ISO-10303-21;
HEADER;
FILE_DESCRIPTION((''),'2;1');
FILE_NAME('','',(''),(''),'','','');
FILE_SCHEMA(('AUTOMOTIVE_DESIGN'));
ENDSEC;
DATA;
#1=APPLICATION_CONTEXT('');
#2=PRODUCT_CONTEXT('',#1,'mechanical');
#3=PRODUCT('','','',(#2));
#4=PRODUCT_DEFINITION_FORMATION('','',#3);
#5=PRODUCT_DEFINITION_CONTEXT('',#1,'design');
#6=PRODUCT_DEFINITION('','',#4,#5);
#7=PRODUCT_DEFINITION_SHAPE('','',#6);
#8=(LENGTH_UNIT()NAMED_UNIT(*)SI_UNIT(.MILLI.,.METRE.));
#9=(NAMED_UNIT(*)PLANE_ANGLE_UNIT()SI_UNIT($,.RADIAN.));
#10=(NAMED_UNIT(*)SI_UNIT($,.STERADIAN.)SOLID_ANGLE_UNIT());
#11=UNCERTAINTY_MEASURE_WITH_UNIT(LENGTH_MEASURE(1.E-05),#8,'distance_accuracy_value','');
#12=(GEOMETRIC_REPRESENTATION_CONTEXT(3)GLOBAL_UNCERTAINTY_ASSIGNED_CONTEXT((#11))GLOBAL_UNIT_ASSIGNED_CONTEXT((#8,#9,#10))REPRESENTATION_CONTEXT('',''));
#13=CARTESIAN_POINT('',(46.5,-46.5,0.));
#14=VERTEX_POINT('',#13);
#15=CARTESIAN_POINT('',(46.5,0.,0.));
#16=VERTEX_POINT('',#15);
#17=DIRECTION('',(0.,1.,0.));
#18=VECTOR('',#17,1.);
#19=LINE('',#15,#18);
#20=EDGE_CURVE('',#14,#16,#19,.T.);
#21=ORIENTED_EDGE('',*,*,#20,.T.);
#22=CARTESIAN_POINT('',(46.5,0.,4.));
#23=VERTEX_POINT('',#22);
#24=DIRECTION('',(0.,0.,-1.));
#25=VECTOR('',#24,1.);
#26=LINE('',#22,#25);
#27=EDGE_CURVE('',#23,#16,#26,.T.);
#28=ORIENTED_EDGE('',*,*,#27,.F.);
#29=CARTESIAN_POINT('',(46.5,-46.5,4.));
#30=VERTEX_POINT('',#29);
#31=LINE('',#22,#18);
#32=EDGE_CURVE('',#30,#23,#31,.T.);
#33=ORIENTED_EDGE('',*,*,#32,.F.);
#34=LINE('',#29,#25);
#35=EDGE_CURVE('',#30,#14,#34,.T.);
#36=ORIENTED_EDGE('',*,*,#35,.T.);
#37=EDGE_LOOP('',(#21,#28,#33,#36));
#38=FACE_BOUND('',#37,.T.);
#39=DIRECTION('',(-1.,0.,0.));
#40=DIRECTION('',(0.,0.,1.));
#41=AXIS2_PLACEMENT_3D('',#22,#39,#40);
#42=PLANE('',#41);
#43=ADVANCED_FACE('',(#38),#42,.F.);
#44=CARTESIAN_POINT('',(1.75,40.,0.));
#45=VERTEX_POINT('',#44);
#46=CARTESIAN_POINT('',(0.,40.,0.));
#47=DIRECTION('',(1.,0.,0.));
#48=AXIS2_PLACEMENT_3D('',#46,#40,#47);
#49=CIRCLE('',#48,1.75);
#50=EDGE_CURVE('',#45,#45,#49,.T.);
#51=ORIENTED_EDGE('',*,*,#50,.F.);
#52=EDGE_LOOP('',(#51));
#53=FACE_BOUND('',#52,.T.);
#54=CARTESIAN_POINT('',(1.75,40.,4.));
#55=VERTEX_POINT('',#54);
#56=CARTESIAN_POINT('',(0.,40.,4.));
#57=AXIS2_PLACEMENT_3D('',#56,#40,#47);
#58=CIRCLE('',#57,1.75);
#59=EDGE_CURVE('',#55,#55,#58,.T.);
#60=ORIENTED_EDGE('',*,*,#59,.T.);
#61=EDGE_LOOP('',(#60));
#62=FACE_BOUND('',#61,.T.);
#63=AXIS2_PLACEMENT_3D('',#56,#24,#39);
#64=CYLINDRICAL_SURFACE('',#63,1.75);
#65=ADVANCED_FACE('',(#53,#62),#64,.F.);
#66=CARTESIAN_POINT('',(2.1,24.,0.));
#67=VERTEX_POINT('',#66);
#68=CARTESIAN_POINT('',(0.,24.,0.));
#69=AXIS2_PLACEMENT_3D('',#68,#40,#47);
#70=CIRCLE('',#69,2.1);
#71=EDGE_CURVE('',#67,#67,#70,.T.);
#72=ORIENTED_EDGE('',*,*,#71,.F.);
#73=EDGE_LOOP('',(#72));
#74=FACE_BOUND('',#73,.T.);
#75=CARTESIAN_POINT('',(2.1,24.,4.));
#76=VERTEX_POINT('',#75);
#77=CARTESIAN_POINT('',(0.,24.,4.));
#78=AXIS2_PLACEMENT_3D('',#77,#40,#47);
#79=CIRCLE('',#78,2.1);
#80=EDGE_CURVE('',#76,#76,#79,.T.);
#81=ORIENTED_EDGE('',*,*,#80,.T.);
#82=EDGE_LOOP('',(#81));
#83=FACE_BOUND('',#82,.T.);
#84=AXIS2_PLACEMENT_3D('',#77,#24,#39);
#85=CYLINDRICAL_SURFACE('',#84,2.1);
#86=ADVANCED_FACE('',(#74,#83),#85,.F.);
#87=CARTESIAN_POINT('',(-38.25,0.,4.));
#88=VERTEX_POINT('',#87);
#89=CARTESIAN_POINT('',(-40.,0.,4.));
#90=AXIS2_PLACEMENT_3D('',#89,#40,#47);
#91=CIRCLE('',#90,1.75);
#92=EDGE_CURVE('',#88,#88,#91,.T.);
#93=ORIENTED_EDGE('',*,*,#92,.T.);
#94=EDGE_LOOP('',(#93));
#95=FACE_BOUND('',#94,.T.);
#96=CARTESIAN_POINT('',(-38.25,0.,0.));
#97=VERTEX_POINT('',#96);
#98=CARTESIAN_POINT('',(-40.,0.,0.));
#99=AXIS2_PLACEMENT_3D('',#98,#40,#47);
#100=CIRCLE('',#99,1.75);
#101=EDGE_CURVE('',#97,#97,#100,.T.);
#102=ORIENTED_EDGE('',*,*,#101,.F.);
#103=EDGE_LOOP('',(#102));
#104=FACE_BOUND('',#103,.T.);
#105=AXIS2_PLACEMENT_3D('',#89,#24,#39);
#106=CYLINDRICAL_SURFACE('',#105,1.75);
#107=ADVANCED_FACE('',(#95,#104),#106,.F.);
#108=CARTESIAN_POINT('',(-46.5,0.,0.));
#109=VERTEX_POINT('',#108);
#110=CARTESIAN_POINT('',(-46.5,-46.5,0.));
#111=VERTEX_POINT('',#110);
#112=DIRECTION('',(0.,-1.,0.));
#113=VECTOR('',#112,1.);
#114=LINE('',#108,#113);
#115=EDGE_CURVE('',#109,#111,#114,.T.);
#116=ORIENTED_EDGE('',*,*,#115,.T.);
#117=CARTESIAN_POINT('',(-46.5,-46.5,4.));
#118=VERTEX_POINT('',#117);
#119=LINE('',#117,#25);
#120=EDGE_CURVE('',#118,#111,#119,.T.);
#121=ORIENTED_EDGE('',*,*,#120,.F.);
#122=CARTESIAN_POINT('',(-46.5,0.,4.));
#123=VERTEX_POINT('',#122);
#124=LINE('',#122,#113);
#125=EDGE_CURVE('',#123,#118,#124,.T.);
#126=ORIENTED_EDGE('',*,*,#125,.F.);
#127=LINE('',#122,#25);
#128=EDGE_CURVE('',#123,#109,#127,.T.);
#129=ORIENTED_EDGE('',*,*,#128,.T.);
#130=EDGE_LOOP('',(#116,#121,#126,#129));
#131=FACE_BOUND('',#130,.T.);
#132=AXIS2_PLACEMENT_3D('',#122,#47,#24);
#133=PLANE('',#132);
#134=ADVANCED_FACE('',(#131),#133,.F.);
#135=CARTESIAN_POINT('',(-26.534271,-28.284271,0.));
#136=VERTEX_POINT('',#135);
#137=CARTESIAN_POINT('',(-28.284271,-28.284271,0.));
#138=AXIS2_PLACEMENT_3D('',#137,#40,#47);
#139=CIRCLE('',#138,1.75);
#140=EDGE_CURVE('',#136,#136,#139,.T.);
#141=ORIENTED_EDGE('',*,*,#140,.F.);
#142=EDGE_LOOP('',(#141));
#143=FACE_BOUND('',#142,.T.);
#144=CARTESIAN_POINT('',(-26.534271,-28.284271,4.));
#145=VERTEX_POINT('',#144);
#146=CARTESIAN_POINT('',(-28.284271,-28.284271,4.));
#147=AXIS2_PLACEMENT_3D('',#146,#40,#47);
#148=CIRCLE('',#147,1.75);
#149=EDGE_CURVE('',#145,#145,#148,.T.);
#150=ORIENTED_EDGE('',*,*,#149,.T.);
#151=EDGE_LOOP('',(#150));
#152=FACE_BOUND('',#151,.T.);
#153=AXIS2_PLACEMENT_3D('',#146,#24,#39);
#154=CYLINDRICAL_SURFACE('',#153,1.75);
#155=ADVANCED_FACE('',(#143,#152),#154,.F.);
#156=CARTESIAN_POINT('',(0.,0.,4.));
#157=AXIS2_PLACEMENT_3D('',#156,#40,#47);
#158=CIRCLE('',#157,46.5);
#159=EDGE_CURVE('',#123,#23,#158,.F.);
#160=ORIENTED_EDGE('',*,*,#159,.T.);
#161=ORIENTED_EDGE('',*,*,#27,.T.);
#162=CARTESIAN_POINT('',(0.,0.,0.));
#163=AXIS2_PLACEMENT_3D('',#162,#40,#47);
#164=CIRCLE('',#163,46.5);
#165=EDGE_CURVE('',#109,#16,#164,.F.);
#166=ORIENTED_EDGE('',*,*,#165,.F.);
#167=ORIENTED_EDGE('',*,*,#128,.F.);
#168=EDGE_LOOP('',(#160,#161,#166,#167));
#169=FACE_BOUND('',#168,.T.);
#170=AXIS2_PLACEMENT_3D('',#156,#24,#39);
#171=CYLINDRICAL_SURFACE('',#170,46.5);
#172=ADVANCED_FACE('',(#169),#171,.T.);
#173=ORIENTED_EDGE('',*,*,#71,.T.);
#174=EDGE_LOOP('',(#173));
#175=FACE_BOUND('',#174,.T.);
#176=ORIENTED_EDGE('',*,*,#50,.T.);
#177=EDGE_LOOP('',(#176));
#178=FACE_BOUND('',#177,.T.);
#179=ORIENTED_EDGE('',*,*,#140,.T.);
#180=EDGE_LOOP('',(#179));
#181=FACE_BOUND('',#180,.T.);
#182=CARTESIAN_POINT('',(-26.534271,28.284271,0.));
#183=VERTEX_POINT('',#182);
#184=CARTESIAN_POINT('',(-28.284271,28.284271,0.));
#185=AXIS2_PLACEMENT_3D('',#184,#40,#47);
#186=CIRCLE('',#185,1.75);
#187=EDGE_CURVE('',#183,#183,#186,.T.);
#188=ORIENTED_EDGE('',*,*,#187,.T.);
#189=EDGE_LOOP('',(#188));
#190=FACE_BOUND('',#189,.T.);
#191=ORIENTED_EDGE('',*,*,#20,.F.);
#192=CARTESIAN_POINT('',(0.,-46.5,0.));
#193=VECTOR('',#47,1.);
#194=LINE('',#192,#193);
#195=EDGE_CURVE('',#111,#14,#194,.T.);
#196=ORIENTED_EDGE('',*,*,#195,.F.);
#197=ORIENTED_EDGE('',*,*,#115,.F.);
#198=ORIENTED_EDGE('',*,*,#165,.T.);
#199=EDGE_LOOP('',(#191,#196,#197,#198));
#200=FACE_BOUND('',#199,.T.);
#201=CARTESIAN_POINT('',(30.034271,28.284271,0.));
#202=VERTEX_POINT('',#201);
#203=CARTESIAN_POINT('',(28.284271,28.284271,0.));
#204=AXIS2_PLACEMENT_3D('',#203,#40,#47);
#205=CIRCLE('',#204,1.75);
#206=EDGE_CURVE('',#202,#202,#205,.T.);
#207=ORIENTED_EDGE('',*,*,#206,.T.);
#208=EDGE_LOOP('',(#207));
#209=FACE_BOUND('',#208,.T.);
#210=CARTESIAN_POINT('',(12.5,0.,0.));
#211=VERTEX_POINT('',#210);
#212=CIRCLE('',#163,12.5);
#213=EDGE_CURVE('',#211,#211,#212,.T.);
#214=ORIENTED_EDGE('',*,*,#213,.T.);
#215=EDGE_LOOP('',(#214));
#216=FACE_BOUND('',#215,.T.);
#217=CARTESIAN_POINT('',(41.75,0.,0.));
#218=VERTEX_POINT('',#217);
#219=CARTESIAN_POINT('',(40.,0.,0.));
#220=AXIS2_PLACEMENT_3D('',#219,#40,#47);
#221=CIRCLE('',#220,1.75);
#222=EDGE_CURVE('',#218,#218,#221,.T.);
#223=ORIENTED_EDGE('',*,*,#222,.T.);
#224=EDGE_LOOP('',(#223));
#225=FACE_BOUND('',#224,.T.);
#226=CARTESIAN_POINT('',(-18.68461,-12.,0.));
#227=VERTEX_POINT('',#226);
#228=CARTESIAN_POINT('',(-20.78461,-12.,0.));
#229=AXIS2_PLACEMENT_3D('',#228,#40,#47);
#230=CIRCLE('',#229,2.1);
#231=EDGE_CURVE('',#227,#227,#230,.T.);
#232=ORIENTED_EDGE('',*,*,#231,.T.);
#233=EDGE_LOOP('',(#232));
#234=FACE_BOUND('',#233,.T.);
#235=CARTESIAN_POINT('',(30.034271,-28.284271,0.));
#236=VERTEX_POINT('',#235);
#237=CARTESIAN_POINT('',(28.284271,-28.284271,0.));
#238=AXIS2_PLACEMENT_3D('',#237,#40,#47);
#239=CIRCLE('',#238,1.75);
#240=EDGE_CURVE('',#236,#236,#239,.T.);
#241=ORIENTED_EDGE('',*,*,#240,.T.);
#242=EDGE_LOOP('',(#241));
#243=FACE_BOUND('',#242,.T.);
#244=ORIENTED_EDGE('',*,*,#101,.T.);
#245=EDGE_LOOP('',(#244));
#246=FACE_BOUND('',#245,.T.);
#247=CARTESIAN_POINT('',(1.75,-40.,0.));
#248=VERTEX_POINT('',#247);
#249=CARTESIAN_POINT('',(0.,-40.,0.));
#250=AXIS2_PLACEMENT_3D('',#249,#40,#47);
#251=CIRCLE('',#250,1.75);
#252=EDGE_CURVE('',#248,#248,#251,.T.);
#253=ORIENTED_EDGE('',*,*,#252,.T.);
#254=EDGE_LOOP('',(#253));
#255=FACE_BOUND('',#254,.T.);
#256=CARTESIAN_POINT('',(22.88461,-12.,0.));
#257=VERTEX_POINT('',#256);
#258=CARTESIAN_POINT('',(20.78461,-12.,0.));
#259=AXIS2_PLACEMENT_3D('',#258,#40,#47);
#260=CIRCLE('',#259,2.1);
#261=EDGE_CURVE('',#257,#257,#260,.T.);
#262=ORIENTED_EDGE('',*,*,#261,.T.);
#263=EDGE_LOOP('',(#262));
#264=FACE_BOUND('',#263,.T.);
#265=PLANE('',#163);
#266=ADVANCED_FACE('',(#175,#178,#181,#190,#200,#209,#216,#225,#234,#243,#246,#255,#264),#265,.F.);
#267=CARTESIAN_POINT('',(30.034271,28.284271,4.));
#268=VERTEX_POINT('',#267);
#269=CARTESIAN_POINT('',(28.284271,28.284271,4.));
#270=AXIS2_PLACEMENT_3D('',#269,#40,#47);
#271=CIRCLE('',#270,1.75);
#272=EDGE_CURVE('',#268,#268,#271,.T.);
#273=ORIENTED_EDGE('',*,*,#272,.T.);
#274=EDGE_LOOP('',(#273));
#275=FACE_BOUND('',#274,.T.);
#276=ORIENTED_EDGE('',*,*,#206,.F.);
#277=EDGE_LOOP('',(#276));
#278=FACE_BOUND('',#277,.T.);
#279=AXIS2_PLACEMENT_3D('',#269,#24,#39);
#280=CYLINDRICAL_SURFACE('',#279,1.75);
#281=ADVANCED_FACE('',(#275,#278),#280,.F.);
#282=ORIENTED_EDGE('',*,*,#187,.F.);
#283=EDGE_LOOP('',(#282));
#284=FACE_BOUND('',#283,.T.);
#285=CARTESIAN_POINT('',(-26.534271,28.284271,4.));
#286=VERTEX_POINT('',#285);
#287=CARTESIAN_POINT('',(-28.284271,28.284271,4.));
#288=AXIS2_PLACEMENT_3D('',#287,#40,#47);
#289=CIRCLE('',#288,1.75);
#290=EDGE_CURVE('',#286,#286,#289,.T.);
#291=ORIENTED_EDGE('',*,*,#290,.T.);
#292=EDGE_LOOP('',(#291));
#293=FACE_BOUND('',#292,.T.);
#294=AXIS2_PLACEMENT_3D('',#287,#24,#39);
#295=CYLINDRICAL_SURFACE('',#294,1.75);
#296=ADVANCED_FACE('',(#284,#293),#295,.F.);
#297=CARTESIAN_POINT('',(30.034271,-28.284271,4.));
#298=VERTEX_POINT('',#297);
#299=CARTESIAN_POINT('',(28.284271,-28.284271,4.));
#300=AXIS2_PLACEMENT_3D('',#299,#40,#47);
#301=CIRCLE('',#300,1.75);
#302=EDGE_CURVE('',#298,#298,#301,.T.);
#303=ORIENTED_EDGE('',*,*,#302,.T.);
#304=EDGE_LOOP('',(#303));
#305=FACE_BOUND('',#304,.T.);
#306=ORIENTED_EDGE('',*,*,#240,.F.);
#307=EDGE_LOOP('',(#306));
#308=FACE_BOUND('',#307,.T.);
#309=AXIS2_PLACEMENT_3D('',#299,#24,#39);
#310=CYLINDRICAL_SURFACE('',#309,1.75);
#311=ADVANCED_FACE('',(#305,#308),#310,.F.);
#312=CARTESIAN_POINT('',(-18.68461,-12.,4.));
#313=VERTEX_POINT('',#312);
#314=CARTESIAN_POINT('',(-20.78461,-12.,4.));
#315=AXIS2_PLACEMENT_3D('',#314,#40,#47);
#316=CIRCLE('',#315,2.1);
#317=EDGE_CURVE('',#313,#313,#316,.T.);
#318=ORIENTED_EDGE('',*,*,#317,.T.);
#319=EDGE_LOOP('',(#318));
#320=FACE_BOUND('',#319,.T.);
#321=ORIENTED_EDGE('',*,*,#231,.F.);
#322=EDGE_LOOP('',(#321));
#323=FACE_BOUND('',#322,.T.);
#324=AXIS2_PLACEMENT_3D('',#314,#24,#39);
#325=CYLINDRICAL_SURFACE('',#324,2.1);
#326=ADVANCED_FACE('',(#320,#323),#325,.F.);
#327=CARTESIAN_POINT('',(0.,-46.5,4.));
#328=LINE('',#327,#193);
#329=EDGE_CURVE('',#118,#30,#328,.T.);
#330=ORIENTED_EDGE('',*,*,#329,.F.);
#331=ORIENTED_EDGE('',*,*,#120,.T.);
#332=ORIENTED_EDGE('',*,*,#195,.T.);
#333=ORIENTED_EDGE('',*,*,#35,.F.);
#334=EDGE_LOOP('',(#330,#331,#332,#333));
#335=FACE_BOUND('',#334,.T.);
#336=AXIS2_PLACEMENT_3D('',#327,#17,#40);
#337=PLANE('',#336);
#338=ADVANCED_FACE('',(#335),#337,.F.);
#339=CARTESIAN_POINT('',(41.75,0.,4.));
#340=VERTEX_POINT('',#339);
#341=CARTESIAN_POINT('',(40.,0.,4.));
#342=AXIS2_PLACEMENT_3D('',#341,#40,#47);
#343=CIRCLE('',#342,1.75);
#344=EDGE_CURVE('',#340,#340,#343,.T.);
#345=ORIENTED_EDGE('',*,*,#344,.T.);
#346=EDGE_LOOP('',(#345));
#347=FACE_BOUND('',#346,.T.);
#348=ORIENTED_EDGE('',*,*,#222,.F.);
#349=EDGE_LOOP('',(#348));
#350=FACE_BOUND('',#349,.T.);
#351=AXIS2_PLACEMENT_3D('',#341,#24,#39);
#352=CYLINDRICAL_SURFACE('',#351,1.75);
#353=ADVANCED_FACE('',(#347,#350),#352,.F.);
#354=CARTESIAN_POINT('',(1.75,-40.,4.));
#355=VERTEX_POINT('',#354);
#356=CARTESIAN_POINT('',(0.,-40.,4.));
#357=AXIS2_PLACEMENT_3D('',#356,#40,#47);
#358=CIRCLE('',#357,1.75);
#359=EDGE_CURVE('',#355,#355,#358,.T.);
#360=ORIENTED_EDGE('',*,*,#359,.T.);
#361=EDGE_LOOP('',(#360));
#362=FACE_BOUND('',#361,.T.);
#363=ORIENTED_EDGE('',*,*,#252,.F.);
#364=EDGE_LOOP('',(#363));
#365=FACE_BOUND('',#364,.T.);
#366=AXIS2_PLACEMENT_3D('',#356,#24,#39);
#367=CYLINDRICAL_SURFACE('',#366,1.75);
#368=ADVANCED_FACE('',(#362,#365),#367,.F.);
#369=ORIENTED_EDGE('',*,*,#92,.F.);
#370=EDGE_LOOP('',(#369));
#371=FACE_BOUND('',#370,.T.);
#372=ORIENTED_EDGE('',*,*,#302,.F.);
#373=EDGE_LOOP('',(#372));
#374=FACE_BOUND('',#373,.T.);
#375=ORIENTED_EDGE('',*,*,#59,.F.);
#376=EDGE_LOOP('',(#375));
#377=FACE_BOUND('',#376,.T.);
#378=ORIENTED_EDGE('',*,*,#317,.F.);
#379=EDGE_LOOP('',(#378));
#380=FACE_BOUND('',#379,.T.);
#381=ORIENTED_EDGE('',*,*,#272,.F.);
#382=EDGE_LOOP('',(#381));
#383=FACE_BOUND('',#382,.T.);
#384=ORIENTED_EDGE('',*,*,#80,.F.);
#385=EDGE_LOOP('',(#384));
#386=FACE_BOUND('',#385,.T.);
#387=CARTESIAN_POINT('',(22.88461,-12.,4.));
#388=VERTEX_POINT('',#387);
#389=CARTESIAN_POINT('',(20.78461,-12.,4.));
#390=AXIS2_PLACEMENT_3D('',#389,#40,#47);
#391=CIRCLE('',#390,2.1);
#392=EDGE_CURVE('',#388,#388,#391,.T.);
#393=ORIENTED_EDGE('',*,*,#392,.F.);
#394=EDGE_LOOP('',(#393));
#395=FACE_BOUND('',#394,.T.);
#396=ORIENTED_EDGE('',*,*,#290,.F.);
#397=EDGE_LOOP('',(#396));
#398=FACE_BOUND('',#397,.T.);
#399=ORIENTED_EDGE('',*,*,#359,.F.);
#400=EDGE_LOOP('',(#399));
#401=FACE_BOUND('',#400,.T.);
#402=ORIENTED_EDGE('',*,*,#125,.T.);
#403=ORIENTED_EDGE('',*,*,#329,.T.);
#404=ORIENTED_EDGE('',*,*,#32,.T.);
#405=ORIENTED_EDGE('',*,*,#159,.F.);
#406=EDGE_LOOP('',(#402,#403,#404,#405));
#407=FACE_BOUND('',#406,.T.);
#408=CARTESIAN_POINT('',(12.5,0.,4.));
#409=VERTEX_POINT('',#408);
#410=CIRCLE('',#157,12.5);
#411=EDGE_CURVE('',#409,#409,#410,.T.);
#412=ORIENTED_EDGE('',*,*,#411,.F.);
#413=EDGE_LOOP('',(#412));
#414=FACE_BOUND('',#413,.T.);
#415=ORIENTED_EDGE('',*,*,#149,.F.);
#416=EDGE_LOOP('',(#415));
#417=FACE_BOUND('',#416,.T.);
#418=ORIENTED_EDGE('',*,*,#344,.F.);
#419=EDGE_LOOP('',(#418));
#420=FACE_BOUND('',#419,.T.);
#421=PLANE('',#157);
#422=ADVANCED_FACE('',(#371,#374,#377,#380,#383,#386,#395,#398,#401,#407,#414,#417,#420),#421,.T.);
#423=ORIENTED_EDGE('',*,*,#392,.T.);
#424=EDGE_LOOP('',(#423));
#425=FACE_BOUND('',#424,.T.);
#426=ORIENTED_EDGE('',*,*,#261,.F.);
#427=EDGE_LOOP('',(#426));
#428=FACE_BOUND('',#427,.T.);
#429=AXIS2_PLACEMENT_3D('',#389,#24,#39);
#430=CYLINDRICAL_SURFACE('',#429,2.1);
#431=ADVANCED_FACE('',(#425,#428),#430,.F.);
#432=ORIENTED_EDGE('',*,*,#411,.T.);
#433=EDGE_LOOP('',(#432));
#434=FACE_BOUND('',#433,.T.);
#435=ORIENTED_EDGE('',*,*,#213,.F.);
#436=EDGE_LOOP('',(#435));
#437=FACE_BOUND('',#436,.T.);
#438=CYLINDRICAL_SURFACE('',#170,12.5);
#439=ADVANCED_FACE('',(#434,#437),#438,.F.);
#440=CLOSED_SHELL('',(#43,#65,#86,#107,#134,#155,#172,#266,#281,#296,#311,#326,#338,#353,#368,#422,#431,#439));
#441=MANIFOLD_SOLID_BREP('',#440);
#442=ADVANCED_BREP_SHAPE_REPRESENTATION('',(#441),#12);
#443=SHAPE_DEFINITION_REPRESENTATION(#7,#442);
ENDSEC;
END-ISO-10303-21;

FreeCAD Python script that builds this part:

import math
import FreeCAD as App
import Part
import Sketcher
from FreeCAD import Vector
Q = App.Units.Quantity

doc = App.newDocument("Part")
body = doc.addObject("PartDesign::Body", "Body")

# Sketch on XY plane
sketch1 = body.newObject("Sketcher::SketchObject", "Sketch")
sketch1.AttachmentSupport = (doc.getObject("XY_Plane"), [""])
sketch1.MapMode = "FlatFace"
sketch1.addGeometry([
    Part.LineSegment(Vector(-46.5, 0, 0), Vector(-46.5, -46.5, 0)),  # 0
    Part.LineSegment(Vector(-46.5, -46.5, 0), Vector(46.5, -46.5, 0)),  # 1
    Part.LineSegment(Vector(46.5, -46.5, 0), Vector(46.5, 0, 0)),  # 2
    Part.ArcOfCircle(Part.Circle(Vector(0, 0, 0), Vector(0, 0, 1), 46.5), math.radians(0), math.radians(180)),  # 3
    Part.Circle(Vector(-28.3, -28.3, 0), Vector(0, 0, 1), 1.8),  # 4
    Part.Circle(Vector(-20.8, -12, 0), Vector(0, 0, 1), 2.1),  # 5
    Part.Circle(Vector(0, -40, 0), Vector(0, 0, 1), 1.8),  # 6
    Part.Circle(Vector(28.3, -28.3, 0), Vector(0, 0, 1), 1.8),  # 7
    Part.Circle(Vector(20.8, -12, 0), Vector(0, 0, 1), 2.1),  # 8
    Part.Circle(Vector(-40, 0, 0), Vector(0, 0, 1), 1.8),  # 9
    Part.Circle(Vector(-28.3, 28.3, 0), Vector(0, 0, 1), 1.8),  # 10
    Part.Circle(Vector(0, 0, 0), Vector(0, 0, 1), 12.5),  # 11
    Part.Circle(Vector(40, 0, 0), Vector(0, 0, 1), 1.8),  # 12
    Part.Circle(Vector(0, 24, 0), Vector(0, 0, 1), 2.1),  # 13
    Part.Circle(Vector(0, 40, 0), Vector(0, 0, 1), 1.8),  # 14
    Part.Circle(Vector(28.3, 28.3, 0), Vector(0, 0, 1), 1.8),  # 15
], False)
sketch1.addConstraint([
    Sketcher.Constraint("Coincident", 0, 2, 1, 1),
    Sketcher.Constraint("Coincident", 1, 2, 2, 1),
    Sketcher.Constraint("Tangent", 2, 2, 3, 1),
    Sketcher.Constraint("Tangent", 3, 2, 0, 1),
    Sketcher.Constraint("Vertical", 0),
    Sketcher.Constraint("Horizontal", 1),
    Sketcher.Constraint("Vertical", 2),
    Sketcher.Constraint("Coincident", 3, 3, -1, 1),
    Sketcher.Constraint("Coincident", 11, 3, -1, 1),
    Sketcher.Constraint("Equal", 4, 6),
    Sketcher.Constraint("Equal", 6, 7),
    Sketcher.Constraint("Equal", 5, 8),
    Sketcher.Constraint("Equal", 7, 9),
    Sketcher.Constraint("Equal", 9, 10),
    Sketcher.Constraint("Equal", 10, 12),
    Sketcher.Constraint("Equal", 8, 13),
    Sketcher.Constraint("Equal", 12, 14),
    Sketcher.Constraint("Equal", 14, 15),
    Sketcher.Constraint("Symmetric", 7, 3, 10, 3, -1, 1),
    Sketcher.Constraint("Symmetric", 9, 3, 12, 3, -1, 1),
    Sketcher.Constraint("Symmetric", 6, 3, 14, 3, -1, 1),
    Sketcher.Constraint("Symmetric", 4, 3, 15, 3, -1, 1),
    Sketcher.Constraint("Symmetric", 4, 3, 7, 3, -2),
    Sketcher.Constraint("Symmetric", 5, 3, 8, 3, -2),
    Sketcher.Constraint("PointOnObject", 6, 3, -2),
    Sketcher.Constraint("PointOnObject", 9, 3, -1),
    Sketcher.Constraint("PointOnObject", 13, 3, -2),
    Sketcher.Constraint("Diameter", 11, Q("25 mm")),
    Sketcher.Constraint("Diameter", 4, Q("3.5 mm")),
    Sketcher.Constraint("Diameter", 5, Q("4.2 mm")),
    Sketcher.Constraint("Radius", 3, Q("46.5 mm")),
    Sketcher.Constraint("DistanceY", 0, 2, 0, 1, Q("46.5 mm")),
    Sketcher.Constraint("DistanceY", 5, 3, -1, 1, Q("12 mm")),
    Sketcher.Constraint("DistanceY", 6, 3, -1, 1, Q("40 mm")),
    Sketcher.Constraint("DistanceX", 9, 3, -1, 1, Q("40 mm")),
    Sketcher.Constraint("DistanceY", -1, 1, 13, 3, Q("24 mm")),
    Sketcher.Constraint("DistanceX", 4, 3, -1, 1, Q("28.284271 mm")),
    Sketcher.Constraint("DistanceY", 4, 3, -1, 1, Q("28.284271 mm")),
    Sketcher.Constraint("DistanceX", 5, 3, -1, 1, Q("20.78461 mm")),
])
pad1 = body.newObject("PartDesign::Pad", "Pad")
pad1.Profile = sketch1
pad1.Length = 4

doc.recompute()
